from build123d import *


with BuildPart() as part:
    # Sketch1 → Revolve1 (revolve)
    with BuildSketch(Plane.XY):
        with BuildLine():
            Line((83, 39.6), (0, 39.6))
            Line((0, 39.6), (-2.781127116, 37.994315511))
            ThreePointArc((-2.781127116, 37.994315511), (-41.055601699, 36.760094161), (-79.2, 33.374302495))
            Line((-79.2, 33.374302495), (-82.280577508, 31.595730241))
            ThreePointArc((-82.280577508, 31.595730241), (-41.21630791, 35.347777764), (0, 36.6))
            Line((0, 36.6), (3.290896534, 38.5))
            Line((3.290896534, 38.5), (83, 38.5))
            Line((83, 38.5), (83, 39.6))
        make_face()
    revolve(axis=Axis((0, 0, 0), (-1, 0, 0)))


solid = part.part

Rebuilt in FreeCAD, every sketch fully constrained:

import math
import FreeCAD as App
import Part
import Sketcher

V = App.Vector
Q = App.Units.Quantity

doc = App.newDocument("Part")
params = doc.addObject("Spreadsheet::Sheet", "Params")
for row, (alias, value) in enumerate([
    ("sketch1_width", "83 mm"),
    ("sketch1_height", "1.1 mm"),
    ("revolution_angle", "360 deg"),
], start=1):
    params.set(f"A{row}", alias)
    params.set(f"B{row}", "=" + value)
    params.setAlias(f"B{row}", alias)

body = doc.addObject("PartDesign::Body", "Body")

# Sketch on XY plane
sketch1 = body.newObject("Sketcher::SketchObject", "Sketch")
sketch1.AttachmentSupport = (doc.getObject("XY_Plane"), [""])
sketch1.MapMode = "FlatFace"
sketch1.addGeometry([
    Part.LineSegment(V(83, 39.6, 0), V(0, 39.6, 0)),  # 0
    Part.LineSegment(V(0, 39.6, 0), V(-2.8, 38, 0)),  # 1
    Part.ArcOfCircle(Part.Circle(V(0, -642.3, 0), V(0, 0, 1), 680.3), math.radians(90.23), math.radians(96.69)),  # 2
    Part.LineSegment(V(-79.2, 33.4, 0), V(-82.3, 31.6, 0)),  # 3
    Part.ArcOfCircle(Part.Circle(V(0, -642.3, 0), V(0, 0, 1), 678.9), math.radians(90), math.radians(96.96)),  # 4
    Part.LineSegment(V(0, 36.6, 0), V(3.3, 38.5, 0)),  # 5
    Part.LineSegment(V(3.3, 38.5, 0), V(83, 38.5, 0)),  # 6
    Part.LineSegment(V(83, 38.5, 0), V(83, 39.6, 0)),  # 7
], False)
sketch1.addConstraint([
    Sketcher.Constraint("Coincident", 0, 2, 1, 1),
    Sketcher.Constraint("Coincident", 1, 2, 2, 1),
    Sketcher.Constraint("Coincident", 2, 2, 3, 1),
    Sketcher.Constraint("Coincident", 3, 2, 4, 2),
    Sketcher.Constraint("Coincident", 4, 1, 5, 1),
    Sketcher.Constraint("Coincident", 5, 2, 6, 1),
    Sketcher.Constraint("Coincident", 6, 2, 7, 1),
    Sketcher.Constraint("Coincident", 7, 2, 0, 1),
    Sketcher.Constraint("Horizontal", 0),
    Sketcher.Constraint("Horizontal", 6),
    Sketcher.Constraint("Vertical", 7),
    Sketcher.Constraint("Coincident", 4, 3, 2, 3),
    Sketcher.Constraint("PointOnObject", 2, 3, -2),
    Sketcher.Constraint("PointOnObject", 0, 2, -2),
    Sketcher.Constraint("Parallel", 1, 3),
    Sketcher.Constraint("Parallel", 3, 5),
    Sketcher.Constraint("DistanceX", 0, 2, 0, 1, 83.0),
    Sketcher.Constraint("Angle", 1, Q("-150 deg")),
    Sketcher.Constraint("DistanceY", 7, 1, 7, 2, 1.1),
    Sketcher.Constraint("DistanceY", 4, 1, 0, 2, 3.0),
    Sketcher.Constraint("DistanceY", -1, 1, 0, 2, 39.6),
    Sketcher.Constraint("Radius", 2, 680.333838),
    Sketcher.Constraint("Radius", 4, 678.933838),
    Sketcher.Constraint("DistanceX", 6, 1, 6, 2, 79.709103),
    Sketcher.Constraint("DistanceY", -1, 1, 3, 2, 31.59573),
])
sketch1.setExpression("Constraints[16]", "Params.sketch1_width")
sketch1.setExpression("Constraints[18]", "Params.sketch1_height")
revolution = body.newObject("PartDesign::Revolution", "Revolution")
revolution.Profile = sketch1
revolution.ReferenceAxis = (sketch1, ["H_Axis"])
revolution.setExpression("Angle", "Params.revolution_angle")

doc.recompute()
